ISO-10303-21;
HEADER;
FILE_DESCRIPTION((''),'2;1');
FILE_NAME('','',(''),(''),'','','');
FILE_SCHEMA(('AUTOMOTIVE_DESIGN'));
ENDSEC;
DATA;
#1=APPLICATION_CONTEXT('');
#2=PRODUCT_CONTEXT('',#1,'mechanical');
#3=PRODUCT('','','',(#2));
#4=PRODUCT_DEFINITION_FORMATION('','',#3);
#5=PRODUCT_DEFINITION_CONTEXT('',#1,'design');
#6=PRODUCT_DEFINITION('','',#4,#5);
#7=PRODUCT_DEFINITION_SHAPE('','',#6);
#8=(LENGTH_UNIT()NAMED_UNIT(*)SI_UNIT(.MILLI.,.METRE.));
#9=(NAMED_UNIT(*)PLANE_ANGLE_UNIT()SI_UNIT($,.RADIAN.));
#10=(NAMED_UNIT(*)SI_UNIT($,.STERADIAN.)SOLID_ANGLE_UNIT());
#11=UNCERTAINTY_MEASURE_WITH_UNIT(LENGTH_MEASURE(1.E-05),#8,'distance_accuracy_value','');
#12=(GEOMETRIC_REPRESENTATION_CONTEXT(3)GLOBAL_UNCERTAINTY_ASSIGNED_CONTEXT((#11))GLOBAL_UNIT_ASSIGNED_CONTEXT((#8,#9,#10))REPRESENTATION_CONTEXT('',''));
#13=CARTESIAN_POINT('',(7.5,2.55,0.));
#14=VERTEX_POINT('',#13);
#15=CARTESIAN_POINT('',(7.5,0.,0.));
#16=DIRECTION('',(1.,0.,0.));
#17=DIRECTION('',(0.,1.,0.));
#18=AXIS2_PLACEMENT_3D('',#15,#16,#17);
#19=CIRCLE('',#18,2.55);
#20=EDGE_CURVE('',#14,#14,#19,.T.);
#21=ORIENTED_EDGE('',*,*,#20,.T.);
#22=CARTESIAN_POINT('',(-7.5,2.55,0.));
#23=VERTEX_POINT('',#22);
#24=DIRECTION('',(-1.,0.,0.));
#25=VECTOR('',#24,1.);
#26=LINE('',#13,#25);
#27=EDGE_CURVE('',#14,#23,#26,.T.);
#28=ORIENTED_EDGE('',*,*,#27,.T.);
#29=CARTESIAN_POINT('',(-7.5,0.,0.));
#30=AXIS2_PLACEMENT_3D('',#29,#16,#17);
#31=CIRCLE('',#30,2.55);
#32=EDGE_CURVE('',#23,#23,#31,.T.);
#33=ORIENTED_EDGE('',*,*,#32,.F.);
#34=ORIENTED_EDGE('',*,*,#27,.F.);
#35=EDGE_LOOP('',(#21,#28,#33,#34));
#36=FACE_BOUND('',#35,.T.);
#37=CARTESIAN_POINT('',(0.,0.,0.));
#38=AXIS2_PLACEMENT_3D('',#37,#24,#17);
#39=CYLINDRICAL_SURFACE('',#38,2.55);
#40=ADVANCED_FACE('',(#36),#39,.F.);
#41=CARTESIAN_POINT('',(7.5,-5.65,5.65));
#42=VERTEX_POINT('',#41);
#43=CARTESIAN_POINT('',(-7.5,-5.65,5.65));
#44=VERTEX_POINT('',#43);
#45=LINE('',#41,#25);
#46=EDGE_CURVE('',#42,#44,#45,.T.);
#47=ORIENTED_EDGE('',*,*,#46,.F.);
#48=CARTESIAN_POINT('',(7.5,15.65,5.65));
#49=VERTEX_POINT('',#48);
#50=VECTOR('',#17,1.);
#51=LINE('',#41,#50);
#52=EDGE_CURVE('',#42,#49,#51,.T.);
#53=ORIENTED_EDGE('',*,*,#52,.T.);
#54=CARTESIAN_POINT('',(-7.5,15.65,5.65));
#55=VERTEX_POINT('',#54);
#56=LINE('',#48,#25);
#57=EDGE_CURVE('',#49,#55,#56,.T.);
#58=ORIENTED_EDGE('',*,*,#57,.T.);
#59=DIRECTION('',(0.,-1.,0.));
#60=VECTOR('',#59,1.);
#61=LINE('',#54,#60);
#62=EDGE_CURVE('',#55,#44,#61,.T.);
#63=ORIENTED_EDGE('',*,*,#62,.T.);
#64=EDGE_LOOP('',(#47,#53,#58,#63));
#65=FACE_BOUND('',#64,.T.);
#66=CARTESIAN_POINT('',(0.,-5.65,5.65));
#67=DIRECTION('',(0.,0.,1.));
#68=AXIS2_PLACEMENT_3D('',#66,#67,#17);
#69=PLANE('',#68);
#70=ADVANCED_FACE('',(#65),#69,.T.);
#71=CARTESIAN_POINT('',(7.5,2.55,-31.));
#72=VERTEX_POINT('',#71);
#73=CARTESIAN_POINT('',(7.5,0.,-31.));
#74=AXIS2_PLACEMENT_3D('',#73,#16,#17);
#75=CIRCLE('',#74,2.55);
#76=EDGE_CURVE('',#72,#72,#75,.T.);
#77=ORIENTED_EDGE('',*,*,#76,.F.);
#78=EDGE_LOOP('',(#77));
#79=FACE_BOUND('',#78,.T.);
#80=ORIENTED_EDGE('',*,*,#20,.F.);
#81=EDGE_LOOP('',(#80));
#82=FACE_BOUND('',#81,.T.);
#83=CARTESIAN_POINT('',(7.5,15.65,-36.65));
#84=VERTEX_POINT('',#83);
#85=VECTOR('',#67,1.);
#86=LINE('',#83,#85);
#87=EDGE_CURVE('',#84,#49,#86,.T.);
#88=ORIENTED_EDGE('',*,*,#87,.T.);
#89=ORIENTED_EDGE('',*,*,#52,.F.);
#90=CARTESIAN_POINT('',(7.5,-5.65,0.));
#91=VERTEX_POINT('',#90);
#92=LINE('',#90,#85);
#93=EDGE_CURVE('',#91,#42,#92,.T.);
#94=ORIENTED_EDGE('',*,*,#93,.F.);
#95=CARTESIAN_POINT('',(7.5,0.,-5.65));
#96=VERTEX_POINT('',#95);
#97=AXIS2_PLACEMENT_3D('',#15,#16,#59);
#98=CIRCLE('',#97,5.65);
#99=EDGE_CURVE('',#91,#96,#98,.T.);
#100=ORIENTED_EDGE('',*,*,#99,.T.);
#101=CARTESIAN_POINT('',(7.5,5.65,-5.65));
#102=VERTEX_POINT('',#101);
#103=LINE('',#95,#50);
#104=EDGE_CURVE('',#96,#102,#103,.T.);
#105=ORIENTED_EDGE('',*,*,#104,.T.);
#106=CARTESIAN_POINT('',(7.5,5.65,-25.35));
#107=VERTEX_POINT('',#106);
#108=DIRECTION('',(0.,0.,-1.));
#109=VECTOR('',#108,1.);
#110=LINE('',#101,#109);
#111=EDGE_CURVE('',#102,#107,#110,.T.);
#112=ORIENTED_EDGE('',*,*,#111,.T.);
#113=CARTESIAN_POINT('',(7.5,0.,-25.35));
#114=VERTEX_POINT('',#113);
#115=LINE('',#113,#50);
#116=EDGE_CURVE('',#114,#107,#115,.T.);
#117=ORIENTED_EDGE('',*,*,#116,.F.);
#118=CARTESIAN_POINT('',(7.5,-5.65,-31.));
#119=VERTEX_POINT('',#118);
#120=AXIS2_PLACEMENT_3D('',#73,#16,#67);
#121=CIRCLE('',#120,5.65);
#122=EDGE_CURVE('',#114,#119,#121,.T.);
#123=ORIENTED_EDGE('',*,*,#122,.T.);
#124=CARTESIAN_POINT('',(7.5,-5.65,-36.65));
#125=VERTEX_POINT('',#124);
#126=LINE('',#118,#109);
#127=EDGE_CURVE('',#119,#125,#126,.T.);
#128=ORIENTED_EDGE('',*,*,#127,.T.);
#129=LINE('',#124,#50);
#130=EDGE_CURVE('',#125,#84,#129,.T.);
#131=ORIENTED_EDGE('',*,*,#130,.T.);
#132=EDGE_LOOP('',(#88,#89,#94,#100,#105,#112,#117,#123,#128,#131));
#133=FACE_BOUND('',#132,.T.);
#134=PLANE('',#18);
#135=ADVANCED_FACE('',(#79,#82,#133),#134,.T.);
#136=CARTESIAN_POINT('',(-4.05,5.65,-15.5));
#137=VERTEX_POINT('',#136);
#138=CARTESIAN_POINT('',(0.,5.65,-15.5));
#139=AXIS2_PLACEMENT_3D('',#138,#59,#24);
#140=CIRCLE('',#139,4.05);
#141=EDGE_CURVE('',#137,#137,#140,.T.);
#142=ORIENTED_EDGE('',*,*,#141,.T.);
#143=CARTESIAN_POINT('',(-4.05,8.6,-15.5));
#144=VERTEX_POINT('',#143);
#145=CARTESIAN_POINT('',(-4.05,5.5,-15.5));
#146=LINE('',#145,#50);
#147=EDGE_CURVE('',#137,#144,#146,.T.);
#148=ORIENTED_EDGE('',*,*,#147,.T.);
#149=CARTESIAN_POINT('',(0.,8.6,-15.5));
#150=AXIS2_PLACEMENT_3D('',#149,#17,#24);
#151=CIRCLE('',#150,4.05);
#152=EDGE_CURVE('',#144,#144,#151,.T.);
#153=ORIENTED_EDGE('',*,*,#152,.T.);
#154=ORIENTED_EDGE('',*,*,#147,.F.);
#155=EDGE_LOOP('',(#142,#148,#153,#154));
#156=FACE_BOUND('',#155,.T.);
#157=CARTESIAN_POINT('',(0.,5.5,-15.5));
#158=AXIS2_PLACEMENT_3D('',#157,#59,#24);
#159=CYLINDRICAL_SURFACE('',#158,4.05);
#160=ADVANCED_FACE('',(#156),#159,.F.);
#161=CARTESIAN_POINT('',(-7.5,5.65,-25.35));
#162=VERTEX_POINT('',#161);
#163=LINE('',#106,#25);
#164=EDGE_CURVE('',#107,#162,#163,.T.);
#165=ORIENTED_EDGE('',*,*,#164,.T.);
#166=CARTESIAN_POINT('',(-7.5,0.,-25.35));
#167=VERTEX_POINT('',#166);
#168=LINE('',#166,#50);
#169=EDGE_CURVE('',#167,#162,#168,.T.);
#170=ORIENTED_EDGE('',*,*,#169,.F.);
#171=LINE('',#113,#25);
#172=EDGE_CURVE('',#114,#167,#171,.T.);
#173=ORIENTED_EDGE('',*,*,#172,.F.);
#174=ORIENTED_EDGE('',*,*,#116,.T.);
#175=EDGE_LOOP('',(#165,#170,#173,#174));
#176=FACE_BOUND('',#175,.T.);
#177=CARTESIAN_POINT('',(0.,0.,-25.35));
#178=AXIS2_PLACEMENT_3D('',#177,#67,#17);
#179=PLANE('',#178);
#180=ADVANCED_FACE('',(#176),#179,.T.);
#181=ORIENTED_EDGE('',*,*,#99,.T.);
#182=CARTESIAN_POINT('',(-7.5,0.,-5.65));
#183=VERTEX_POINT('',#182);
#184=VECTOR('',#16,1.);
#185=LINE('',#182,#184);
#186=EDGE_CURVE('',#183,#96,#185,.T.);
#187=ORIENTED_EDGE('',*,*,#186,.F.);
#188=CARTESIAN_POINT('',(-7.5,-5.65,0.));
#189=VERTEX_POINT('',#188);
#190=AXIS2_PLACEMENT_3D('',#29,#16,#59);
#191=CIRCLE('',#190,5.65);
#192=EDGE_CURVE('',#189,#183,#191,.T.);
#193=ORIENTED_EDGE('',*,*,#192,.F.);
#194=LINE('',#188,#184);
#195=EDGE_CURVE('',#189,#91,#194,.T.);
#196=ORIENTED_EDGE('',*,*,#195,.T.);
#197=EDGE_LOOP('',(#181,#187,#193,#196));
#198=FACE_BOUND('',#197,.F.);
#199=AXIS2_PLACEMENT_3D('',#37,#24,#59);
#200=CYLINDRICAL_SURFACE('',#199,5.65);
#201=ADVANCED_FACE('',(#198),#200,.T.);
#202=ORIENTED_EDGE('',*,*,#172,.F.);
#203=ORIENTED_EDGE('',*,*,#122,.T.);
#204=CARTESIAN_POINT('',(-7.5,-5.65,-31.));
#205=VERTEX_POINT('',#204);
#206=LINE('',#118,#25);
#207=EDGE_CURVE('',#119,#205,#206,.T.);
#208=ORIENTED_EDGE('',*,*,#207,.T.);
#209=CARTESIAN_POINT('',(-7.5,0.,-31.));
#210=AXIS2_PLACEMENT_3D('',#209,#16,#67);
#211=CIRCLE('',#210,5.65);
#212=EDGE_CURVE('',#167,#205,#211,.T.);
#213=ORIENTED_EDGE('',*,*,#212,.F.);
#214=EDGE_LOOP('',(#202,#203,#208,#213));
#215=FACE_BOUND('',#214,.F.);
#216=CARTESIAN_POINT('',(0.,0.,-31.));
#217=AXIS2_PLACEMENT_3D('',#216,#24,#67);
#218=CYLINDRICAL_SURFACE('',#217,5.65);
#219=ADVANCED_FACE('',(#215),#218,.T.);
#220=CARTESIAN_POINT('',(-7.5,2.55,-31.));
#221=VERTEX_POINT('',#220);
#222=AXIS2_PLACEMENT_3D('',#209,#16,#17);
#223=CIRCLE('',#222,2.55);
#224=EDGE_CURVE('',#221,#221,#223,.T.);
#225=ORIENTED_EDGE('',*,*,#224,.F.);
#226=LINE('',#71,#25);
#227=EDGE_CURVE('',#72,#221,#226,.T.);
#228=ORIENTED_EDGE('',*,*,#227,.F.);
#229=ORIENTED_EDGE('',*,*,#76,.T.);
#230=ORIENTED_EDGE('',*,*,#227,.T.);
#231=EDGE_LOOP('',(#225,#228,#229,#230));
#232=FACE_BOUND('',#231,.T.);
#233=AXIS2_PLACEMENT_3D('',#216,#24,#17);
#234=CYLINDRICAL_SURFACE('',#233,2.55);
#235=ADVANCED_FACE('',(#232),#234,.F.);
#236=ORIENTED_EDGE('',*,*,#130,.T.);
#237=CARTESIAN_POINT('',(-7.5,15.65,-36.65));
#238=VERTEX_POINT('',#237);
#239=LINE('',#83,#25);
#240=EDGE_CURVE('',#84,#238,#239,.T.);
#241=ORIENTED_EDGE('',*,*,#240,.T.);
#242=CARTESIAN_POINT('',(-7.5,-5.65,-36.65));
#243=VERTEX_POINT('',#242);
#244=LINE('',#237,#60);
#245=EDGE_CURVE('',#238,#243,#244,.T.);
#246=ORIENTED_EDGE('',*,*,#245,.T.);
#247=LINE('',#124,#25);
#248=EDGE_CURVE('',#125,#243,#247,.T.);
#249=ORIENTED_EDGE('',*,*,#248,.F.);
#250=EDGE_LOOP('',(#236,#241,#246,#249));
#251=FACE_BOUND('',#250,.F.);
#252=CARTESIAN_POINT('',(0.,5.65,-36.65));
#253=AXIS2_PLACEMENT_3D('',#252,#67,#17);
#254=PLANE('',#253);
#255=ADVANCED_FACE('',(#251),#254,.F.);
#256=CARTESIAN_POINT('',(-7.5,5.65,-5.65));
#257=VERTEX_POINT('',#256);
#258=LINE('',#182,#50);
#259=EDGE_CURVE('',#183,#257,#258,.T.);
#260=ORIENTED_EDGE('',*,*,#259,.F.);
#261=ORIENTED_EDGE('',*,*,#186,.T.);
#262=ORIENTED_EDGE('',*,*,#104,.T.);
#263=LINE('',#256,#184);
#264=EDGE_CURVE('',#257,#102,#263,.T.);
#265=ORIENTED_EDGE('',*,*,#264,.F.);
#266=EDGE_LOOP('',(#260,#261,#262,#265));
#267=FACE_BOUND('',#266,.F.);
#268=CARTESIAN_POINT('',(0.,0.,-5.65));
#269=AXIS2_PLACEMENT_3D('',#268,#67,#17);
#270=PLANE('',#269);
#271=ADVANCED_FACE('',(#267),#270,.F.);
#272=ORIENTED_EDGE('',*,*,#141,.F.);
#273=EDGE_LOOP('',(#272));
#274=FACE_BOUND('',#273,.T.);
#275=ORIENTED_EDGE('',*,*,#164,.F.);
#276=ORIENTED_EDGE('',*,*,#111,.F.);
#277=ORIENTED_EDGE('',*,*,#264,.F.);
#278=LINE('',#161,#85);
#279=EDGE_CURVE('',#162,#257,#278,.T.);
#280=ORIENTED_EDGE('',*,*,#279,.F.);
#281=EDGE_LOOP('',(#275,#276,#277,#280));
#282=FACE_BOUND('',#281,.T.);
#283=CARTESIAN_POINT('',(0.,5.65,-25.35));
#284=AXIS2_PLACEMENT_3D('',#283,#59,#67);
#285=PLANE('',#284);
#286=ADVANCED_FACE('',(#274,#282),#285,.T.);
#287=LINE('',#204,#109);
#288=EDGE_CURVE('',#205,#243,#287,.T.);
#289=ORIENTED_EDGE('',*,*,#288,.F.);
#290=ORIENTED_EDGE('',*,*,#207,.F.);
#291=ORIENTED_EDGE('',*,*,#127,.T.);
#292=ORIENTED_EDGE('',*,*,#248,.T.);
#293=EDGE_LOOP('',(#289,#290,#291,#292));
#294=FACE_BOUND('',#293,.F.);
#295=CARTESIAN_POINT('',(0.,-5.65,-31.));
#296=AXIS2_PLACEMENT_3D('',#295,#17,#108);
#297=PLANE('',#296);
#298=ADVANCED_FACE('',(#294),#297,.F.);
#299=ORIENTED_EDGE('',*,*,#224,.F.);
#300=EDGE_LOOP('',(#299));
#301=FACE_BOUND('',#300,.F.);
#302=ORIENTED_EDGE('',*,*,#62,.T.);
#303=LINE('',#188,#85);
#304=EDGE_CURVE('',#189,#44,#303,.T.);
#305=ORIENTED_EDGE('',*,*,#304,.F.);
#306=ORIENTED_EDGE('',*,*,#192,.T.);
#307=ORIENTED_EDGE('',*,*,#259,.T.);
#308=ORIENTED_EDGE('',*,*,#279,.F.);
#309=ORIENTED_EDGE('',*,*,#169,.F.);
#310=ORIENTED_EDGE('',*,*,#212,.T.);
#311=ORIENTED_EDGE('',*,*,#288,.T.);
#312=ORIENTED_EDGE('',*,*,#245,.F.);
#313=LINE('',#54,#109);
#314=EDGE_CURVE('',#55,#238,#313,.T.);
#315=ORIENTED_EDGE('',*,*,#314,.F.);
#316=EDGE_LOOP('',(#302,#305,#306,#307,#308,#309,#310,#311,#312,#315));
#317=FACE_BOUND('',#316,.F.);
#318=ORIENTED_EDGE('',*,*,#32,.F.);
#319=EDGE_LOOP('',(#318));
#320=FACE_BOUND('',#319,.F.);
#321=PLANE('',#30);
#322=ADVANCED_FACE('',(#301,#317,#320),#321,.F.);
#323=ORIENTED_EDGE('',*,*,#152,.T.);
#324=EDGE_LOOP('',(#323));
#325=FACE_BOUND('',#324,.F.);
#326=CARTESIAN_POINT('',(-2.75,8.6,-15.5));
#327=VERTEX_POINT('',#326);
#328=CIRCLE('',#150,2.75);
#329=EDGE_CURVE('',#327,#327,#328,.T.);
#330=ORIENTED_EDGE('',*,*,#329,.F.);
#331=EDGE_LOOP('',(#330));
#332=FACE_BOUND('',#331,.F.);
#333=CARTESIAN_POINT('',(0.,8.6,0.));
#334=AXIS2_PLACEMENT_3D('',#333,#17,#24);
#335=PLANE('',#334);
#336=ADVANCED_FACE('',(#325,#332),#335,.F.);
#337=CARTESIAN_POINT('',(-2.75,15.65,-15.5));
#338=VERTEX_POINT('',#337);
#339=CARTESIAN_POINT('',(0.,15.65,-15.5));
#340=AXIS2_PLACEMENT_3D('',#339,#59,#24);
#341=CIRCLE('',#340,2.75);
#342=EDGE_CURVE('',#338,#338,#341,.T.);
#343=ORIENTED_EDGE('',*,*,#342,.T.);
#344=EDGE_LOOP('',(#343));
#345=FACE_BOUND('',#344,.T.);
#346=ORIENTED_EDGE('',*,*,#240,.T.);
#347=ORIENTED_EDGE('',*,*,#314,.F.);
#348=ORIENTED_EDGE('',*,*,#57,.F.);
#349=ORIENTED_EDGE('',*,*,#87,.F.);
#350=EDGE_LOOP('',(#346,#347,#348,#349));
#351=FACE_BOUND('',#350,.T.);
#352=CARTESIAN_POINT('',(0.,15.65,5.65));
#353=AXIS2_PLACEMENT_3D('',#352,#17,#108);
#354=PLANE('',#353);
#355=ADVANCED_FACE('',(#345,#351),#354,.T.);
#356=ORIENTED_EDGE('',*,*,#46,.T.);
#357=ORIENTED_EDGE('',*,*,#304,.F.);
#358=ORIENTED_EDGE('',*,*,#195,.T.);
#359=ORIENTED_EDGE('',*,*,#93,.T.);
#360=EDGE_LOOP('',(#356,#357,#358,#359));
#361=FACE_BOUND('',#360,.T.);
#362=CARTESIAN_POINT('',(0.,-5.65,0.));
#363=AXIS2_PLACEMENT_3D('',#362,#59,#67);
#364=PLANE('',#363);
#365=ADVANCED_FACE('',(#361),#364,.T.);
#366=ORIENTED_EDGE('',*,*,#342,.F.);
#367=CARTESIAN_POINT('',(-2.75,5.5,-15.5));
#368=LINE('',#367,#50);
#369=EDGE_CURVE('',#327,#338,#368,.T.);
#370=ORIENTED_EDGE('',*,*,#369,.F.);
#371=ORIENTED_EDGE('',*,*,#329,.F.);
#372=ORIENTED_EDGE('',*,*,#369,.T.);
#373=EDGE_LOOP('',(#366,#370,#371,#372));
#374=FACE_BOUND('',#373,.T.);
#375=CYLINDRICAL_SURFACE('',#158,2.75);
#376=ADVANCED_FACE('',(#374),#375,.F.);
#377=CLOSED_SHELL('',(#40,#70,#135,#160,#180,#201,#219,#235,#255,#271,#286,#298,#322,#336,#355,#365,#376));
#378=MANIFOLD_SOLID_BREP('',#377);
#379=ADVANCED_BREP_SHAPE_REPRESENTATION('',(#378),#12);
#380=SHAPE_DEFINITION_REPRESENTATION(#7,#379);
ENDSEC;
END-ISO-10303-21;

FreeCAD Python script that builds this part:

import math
import FreeCAD as App
import Part
import Sketcher
from FreeCAD import Vector

doc = App.newDocument("Part")
params = doc.addObject("Spreadsheet::Sheet", "Params")
for row, (alias, value) in enumerate([
    ("sketch1_diameter", "5.1 mm"),
    ("sketch1_radius", "5.65 mm"),
    ("sketch1_height", "19.7 mm"),
    ("pad1_length", "15 mm"),
    ("sketch2_diameter", "5.5 mm"),
    ("sketch3_diameter", "8.1 mm"),
    ("sketch3_diameter2", "5.5 mm"),
    ("pocket2_length", "3.1 mm"),
], start=1):
    params.set(f"A{row}", alias)
    params.set(f"B{row}", "=" + value)
    params.setAlias(f"B{row}", alias)

body = doc.addObject("PartDesign::Body", "Body")

# Sketch on YZ plane
sketch1 = body.newObject("Sketcher::SketchObject", "Sketch")
sketch1.AttachmentSupport = (doc.getObject("YZ_Plane"), [""])
sketch1.MapMode = "FlatFace"
sketch1.addGeometry(Part.LineSegment(Vector(-5.65, 5.65, 0), Vector(-5.65, 0, 0)), False)
sketch1.addGeometry(Part.ArcOfCircle(Part.Circle(Vector(0, 0, 0), Vector(0, 0, 1), 5.65), math.radians(180), math.radians(270)), False)
sketch1.addGeometry(Part.LineSegment(Vector(0, -5.65, 0), Vector(5.65, -5.65, 0)), False)
sketch1.addGeometry(Part.LineSegment(Vector(5.65, -5.65, 0), Vector(5.65, -25.35, 0)), False)
sketch1.addGeometry(Part.LineSegment(Vector(5.65, -25.35, 0), Vector(0, -25.35, 0)), False)
sketch1.addGeometry(Part.ArcOfCircle(Part.Circle(Vector(0, -31, 0), Vector(0, 0, 1), 5.65), math.radians(90), math.radians(180)), False)
sketch1.addGeometry(Part.LineSegment(Vector(-5.65, -31, 0), Vector(-5.65, -36.65, 0)), False)
sketch1.addGeometry(Part.LineSegment(Vector(-5.65, -36.65, 0), Vector(15.65, -36.65, 0)), False)
sketch1.addGeometry(Part.LineSegment(Vector(15.65, -36.65, 0), Vector(15.65, 5.65, 0)), False)
sketch1.addGeometry(Part.LineSegment(Vector(15.65, 5.65, 0), Vector(-5.65, 5.65, 0)), False)
sketch1.addGeometry(Part.Circle(Vector(0, -31, 0), Vector(0, 0, 1), 2.55), False)
sketch1.addGeometry(Part.Circle(Vector(0, 0, 0), Vector(0, 0, 1), 2.55), False)
sketch1.addConstraint(Sketcher.Constraint("Tangent", 0, 2, 1, 1))
sketch1.addConstraint(Sketcher.Constraint("Tangent", 1, 2, 2, 1))
sketch1.addConstraint(Sketcher.Constraint("Coincident", 2, 2, 3, 1))
sketch1.addConstraint(Sketcher.Constraint("Coincident", 3, 2, 4, 1))
sketch1.addConstraint(Sketcher.Constraint("Tangent", 4, 2, 5, 1))
sketch1.addConstraint(Sketcher.Constraint("Tangent", 5, 2, 6, 1))
sketch1.addConstraint(Sketcher.Constraint("Coincident", 6, 2, 7, 1))
sketch1.addConstraint(Sketcher.Constraint("Coincident", 7, 2, 8, 1))
sketch1.addConstraint(Sketcher.Constraint("Coincident", 8, 2, 9, 1))
sketch1.addConstraint(Sketcher.Constraint("Coincident", 9, 2, 0, 1))
sketch1.addConstraint(Sketcher.Constraint("Vertical", 0))
sketch1.addConstraint(Sketcher.Constraint("Horizontal", 2))
sketch1.addConstraint(Sketcher.Constraint("Vertical", 3))
sketch1.addConstraint(Sketcher.Constraint("Horizontal", 4))
sketch1.addConstraint(Sketcher.Constraint("Vertical", 6))
sketch1.addConstraint(Sketcher.Constraint("Horizontal", 7))
sketch1.addConstraint(Sketcher.Constraint("Vertical", 8))
sketch1.addConstraint(Sketcher.Constraint("Horizontal", 9))
sketch1.addConstraint(Sketcher.Constraint("Coincident", 1, 3, -1, 1))
sketch1.addConstraint(Sketcher.Constraint("Coincident", 11, 3, -1, 1))
sketch1.addConstraint(Sketcher.Constraint("Coincident", 10, 3, 5, 3))
sketch1.addConstraint(Sketcher.Constraint("Equal", 1, 5))
sketch1.addConstraint(Sketcher.Constraint("Equal", 10, 11))
sketch1.addConstraint(Sketcher.Constraint("Symmetric", 2, 2, 9, 2, -1, 1))
sketch1.addConstraint(Sketcher.Constraint("PointOnObject", 5, 3, -2))
sketch1.addConstraint(Sketcher.Constraint("Equal", 0, 6))
sketch1.addConstraint(Sketcher.Constraint("Diameter", 10, 5.1))
sketch1.addConstraint(Sketcher.Constraint("Radius", 1, 5.65))
sketch1.addConstraint(Sketcher.Constraint("DistanceX", 3, 2, 7, 2, 10.0))
sketch1.addConstraint(Sketcher.Constraint("DistanceY", 3, 2, 3, 1, 19.7))
sketch1.setExpression("Constraints[26]", "Params.sketch1_diameter")
sketch1.setExpression("Constraints[27]", "Params.sketch1_radius")
sketch1.setExpression("Constraints[29]", "Params.sketch1_height")
pad1 = body.newObject("PartDesign::Pad", "Pad")
pad1.Profile = sketch1
pad1.setExpression("Length", "Params.pad1_length")
pad1.Midplane = True

# Sketch on XZ plane
sketch2 = body.newObject("Sketcher::SketchObject", "Sketch001")
sketch2.AttachmentSupport = (doc.getObject("XZ_Plane"), [""])
sketch2.MapMode = "FlatFace"
sketch2.AttachmentOffset = App.Placement(Vector(0, 0, -5.5), App.Rotation())
sketch2.addGeometry(Part.Circle(Vector(0, -15.5, 0), Vector(0, 0, 1), 2.75), False)
sketch2.addConstraint(Sketcher.Constraint("PointOnObject", 0, 3, -2))
sketch2.addConstraint(Sketcher.Constraint("Diameter", 0, 5.5))
sketch2.addConstraint(Sketcher.Constraint("DistanceY", 0, 3, -1, 1, 15.5))
sketch2.setExpression("Constraints[1]", "Params.sketch2_diameter")
pocket1 = body.newObject("PartDesign::Pocket", "Pocket")
pocket1.Profile = sketch2
pocket1.Type = "ThroughAll"
pocket1.Midplane = True

# Sketch on XZ plane
sketch3 = body.newObject("Sketcher::SketchObject", "Sketch002")
sketch3.AttachmentSupport = (doc.getObject("XZ_Plane"), [""])
sketch3.MapMode = "FlatFace"
sketch3.AttachmentOffset = App.Placement(Vector(0, 0, -5.5), App.Rotation())
sketch3.addGeometry(Part.Circle(Vector(0, -15.5, 0), Vector(0, 0, 1), 4.05), False)
sketch3.addGeometry(Part.Circle(Vector(0, -15.5, 0), Vector(0, 0, 1), 2.75), False)
sketch3.addConstraint(Sketcher.Constraint("Coincident", 1, 3, 0, 3))
sketch3.addConstraint(Sketcher.Constraint("PointOnObject", 0, 3, -2))
sketch3.addConstraint(Sketcher.Constraint("Diameter", 0, 8.1))
sketch3.addConstraint(Sketcher.Constraint("Diameter", 1, 5.5))
sketch3.addConstraint(Sketcher.Constraint("DistanceY", 0, 3, -1, 1, 15.5))
sketch3.setExpression("Constraints[2]", "Params.sketch3_diameter")
sketch3.setExpression("Constraints[3]", "Params.sketch3_diameter2")
pocket2 = body.newObject("PartDesign::Pocket", "Pocket001")
pocket2.Profile = sketch3
pocket2.setExpression("Length", "Params.pocket2_length")

doc.recompute()
